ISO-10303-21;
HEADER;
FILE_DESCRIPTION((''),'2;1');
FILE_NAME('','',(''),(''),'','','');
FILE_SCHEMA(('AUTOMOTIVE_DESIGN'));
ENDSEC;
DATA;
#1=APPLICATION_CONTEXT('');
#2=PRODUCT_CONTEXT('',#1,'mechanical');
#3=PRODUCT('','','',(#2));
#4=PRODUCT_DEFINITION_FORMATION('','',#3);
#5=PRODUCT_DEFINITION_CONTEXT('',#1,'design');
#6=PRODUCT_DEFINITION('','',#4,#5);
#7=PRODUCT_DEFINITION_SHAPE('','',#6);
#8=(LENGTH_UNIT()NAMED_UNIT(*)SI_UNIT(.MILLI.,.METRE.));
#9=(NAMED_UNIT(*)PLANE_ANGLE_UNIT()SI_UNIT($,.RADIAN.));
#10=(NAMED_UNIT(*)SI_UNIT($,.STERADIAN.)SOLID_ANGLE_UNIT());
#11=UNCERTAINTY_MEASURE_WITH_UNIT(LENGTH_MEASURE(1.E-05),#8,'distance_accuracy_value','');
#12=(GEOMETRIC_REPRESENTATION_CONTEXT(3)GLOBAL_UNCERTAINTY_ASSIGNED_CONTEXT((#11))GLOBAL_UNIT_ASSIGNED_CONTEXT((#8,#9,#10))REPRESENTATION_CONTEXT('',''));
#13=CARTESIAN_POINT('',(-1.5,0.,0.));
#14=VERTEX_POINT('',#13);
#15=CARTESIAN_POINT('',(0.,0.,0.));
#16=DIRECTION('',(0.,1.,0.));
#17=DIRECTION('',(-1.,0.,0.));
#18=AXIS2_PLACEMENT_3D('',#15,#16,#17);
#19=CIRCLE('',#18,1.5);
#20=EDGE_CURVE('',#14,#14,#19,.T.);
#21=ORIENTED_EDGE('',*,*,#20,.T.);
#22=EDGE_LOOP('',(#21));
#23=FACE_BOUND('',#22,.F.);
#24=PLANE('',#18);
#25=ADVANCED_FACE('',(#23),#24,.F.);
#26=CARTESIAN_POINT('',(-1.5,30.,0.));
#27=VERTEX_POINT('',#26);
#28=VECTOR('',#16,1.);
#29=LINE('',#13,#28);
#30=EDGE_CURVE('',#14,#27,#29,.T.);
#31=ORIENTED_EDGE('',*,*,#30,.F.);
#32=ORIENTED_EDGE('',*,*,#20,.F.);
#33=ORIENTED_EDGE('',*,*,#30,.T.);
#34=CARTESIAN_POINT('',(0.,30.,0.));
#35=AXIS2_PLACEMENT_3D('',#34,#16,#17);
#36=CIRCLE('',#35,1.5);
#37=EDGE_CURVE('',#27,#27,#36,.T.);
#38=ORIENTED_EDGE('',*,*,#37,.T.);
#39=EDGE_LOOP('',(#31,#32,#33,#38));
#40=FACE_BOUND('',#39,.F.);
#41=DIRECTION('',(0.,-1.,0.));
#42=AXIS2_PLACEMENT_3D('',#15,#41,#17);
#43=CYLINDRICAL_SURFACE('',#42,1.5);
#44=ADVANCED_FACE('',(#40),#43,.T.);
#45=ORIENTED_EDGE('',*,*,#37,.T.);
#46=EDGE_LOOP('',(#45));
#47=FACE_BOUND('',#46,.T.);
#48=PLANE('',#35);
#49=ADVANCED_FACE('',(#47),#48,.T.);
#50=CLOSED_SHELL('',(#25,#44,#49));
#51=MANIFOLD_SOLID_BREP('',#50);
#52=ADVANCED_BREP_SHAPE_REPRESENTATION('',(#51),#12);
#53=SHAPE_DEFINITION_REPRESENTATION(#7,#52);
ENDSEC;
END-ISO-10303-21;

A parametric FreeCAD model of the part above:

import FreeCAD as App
import Part
import Sketcher

doc = App.newDocument("Part")
body = doc.addObject("PartDesign::Body", "Body")

# Sketch on XZ plane
sketch1 = body.newObject("Sketcher::SketchObject", "Sketch")
sketch1.AttachmentSupport = (doc.getObject("XZ_Plane"), [""])
sketch1.MapMode = "FlatFace"
sketch1.addGeometry(Part.Circle(App.Vector(0, 0, 0), App.Vector(0, 0, 1), 1.5), False)
sketch1.addConstraint([
    Sketcher.Constraint("Coincident", 0, 3, -1, 1),
    Sketcher.Constraint("Diameter", 0, 3.0),
])
pad1 = body.newObject("PartDesign::Pad", "Pad")
pad1.Profile = sketch1
pad1.Length = 30
pad1.Reversed = True

doc.recompute()
